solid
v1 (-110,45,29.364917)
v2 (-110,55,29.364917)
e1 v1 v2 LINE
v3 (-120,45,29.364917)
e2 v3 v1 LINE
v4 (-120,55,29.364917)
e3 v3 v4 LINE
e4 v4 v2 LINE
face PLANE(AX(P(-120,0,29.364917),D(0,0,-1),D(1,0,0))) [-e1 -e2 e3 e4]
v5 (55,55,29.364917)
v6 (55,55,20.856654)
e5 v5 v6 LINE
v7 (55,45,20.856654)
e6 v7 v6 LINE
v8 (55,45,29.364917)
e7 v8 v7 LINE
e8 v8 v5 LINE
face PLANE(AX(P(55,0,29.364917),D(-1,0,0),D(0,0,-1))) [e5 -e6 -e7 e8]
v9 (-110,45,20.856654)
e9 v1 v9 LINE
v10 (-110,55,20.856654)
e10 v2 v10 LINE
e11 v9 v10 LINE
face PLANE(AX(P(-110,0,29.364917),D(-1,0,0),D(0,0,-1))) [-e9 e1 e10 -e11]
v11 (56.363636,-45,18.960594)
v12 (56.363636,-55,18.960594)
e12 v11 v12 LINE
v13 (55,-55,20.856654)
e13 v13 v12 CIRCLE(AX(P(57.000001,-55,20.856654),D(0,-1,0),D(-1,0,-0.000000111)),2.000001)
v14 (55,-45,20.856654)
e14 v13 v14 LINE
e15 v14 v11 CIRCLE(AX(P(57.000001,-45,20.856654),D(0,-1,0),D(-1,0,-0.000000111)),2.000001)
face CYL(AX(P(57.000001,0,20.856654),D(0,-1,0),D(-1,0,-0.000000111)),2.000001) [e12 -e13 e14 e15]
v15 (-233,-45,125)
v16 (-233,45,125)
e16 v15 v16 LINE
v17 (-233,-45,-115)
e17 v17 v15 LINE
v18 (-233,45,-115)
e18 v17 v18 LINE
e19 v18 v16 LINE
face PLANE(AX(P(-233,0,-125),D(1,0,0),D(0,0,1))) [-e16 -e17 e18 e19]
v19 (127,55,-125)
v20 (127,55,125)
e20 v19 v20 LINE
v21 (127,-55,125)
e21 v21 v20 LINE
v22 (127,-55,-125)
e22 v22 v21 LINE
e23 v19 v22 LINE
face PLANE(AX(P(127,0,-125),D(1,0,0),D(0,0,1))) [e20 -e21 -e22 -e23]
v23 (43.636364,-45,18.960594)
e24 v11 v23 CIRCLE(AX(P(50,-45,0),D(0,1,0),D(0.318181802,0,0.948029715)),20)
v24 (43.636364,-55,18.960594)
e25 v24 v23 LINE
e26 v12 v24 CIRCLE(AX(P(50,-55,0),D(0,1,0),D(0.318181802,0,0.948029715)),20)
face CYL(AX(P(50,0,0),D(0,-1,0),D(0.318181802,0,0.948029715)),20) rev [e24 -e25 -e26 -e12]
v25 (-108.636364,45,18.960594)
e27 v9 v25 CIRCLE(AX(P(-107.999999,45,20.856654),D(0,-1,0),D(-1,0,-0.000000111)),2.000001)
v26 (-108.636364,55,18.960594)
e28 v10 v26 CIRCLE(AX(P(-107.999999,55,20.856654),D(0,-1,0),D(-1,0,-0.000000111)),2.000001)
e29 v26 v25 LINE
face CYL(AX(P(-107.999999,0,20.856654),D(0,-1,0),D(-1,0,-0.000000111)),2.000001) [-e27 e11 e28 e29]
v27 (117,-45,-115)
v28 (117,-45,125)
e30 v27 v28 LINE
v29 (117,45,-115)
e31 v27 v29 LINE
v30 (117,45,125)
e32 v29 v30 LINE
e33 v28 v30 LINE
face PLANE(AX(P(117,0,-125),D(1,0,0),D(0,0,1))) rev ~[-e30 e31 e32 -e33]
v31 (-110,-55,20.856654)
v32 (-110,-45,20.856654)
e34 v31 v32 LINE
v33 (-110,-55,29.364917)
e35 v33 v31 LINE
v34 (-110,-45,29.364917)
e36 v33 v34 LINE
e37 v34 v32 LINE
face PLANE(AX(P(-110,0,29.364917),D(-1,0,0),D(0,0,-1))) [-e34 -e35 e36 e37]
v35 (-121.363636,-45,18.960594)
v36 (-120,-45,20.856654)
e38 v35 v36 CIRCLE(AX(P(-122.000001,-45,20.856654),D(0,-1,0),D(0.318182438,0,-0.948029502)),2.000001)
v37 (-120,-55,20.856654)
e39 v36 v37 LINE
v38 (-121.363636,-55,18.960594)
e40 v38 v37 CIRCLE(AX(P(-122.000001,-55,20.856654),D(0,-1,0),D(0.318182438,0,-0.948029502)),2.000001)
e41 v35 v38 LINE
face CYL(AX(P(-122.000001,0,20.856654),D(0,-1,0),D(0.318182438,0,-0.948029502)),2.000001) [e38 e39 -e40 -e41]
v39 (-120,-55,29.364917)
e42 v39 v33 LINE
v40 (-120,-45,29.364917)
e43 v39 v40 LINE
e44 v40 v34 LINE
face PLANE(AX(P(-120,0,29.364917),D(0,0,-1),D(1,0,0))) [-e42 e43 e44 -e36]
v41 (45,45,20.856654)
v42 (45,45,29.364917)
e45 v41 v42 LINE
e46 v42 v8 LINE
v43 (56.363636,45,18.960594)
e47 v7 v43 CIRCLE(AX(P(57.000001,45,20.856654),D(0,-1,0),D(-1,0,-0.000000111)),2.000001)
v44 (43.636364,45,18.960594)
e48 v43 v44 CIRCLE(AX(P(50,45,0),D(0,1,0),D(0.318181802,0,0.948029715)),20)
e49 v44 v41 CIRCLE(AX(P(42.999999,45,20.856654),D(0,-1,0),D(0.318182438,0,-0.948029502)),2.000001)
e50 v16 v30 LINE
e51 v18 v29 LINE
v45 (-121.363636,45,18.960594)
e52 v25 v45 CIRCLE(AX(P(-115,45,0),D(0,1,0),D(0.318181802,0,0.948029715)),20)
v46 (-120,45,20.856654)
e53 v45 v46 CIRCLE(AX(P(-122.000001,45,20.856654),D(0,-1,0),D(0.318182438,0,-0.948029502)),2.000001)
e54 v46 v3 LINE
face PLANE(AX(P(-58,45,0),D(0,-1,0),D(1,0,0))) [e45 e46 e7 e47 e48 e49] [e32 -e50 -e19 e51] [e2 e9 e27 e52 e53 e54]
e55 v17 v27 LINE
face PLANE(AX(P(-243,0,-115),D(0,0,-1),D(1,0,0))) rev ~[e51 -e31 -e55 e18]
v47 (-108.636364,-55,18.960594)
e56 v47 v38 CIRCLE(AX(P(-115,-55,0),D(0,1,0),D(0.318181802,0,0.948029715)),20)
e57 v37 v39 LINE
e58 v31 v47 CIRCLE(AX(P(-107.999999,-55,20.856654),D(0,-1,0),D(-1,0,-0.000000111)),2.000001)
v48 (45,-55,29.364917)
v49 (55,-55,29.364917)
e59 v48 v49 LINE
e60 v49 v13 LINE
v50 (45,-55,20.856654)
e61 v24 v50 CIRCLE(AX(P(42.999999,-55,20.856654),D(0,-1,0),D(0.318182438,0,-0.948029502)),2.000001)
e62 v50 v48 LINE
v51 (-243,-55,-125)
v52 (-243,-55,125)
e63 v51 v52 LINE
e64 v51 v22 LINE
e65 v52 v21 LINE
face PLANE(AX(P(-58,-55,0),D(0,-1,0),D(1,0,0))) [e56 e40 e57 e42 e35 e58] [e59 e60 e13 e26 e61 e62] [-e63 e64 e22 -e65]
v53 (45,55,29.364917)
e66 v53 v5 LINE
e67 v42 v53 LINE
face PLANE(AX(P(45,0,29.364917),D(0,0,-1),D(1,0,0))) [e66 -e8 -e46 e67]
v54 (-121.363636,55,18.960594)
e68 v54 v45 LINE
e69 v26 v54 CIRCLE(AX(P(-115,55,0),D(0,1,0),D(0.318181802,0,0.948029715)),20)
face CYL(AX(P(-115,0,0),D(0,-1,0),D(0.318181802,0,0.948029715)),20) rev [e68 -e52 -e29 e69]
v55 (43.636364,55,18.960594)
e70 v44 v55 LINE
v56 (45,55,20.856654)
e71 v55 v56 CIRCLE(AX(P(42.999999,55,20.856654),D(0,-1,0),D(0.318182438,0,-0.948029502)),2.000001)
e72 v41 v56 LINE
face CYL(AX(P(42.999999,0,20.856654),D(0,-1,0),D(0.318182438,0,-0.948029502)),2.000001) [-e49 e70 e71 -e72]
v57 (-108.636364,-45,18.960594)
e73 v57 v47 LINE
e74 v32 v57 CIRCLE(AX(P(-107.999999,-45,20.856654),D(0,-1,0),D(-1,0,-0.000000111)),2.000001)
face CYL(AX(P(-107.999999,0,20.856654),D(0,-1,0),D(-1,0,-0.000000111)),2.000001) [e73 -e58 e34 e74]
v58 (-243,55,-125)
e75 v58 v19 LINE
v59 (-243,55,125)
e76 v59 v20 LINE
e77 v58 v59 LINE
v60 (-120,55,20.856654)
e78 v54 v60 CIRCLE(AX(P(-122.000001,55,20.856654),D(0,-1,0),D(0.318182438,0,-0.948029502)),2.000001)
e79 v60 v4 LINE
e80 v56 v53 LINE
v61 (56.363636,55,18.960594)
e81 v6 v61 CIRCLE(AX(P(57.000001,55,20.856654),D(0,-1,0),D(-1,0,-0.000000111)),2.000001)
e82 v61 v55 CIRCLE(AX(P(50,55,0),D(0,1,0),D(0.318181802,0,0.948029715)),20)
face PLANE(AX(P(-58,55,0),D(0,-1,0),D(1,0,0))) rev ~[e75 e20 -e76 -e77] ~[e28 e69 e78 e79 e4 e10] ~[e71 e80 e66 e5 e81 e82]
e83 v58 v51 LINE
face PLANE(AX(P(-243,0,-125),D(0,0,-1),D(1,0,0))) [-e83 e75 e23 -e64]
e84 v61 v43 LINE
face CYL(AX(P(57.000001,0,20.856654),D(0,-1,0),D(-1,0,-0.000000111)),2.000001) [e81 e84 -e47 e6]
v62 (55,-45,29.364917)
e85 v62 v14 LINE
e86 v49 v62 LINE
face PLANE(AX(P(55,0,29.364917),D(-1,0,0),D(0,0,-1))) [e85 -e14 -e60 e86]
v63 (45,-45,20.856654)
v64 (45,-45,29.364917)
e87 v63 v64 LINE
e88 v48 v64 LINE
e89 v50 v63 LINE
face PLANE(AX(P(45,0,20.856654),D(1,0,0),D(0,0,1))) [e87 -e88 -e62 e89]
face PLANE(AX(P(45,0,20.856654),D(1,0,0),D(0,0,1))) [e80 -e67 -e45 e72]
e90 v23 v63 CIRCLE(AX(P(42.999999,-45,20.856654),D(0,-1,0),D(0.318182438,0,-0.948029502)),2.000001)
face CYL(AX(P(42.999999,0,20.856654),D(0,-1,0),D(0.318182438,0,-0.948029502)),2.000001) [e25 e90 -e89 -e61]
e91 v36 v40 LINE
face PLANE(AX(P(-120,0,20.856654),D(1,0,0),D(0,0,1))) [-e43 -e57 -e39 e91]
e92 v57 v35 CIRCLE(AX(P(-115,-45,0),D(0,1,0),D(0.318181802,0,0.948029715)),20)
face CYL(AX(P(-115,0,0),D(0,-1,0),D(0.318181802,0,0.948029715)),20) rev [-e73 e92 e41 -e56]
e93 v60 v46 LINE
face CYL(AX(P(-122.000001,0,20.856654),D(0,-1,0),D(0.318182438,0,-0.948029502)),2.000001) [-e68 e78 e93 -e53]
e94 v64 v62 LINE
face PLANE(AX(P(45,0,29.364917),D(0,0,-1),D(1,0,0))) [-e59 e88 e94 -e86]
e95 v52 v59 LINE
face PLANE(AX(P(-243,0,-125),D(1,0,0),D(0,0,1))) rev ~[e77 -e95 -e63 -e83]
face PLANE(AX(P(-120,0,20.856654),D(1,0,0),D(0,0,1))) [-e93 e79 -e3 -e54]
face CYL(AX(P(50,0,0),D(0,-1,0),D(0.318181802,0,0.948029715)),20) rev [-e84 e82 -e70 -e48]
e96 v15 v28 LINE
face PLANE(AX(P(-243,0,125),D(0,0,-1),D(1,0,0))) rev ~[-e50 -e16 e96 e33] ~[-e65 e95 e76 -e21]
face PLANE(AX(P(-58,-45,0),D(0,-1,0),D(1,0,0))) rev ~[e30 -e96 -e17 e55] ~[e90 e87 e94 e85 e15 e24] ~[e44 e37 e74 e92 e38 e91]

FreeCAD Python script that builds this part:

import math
import FreeCAD as App
import Part
import Sketcher

V = App.Vector


def faces_at(feature, points):
    """Names of the faces that lie closest to the given points."""
    faces = feature.Shape.Faces
    near = lambda p: min(range(len(faces)), key=lambda i: faces[i].distToShape(Part.Vertex(*p))[0])
    return sorted({f"Face{near(p) + 1}" for p in points})

doc = App.newDocument("Part")
body = doc.addObject("PartDesign::Body", "Body")

sketch1 = body.newObject("Sketcher::SketchObject", "Sketch")
sketch1.AttachmentSupport = (doc.getObject("XZ_Plane"), [""])
sketch1.MapMode = "FlatFace"
sketch1.addGeometry(Part.LineSegment(V(-243, 125, 0), V(-243, -125, 0)), False)
sketch1.addGeometry(Part.LineSegment(V(-243, -125, 0), V(127, -125, 0)), False)
sketch1.addGeometry(Part.LineSegment(V(127, -125, 0), V(127, 125, 0)), False)
sketch1.addGeometry(Part.LineSegment(V(127, 125, 0), V(-243, 125, 0)), False)
sketch1.addGeometry(Part.ArcOfCircle(Part.Circle(V(-107.999999, 20.856654, 0), V(0, 0, 1), 2.000001), math.radians(-179.999994), math.radians(-108.553042)), False)
sketch1.addGeometry(Part.ArcOfCircle(Part.Circle(V(-115, 0, 0), V(0, 0, 1), 20), math.radians(108.553004), math.radians(431.446996)), False)
sketch1.addGeometry(Part.ArcOfCircle(Part.Circle(V(-122.000001, 20.856654, 0), V(0, 0, 1), 2.000001), math.radians(-71.446958), math.radians(-0.000006)), False)
sketch1.addGeometry(Part.LineSegment(V(-120, 20.856654, 0), V(-120, 29.364917, 0)), False)
sketch1.addGeometry(Part.LineSegment(V(-120, 29.364917, 0), V(-110, 29.364917, 0)), False)
sketch1.addGeometry(Part.LineSegment(V(-110, 29.364917, 0), V(-110, 20.856654, 0)), False)
sketch1.addGeometry(Part.ArcOfCircle(Part.Circle(V(57.000001, 20.856654, 0), V(0, 0, 1), 2.000001), math.radians(-179.999994), math.radians(-108.553042)), False)
sketch1.addGeometry(Part.ArcOfCircle(Part.Circle(V(50, 0, 0), V(0, 0, 1), 20), math.radians(108.553004), math.radians(431.446996)), False)
sketch1.addGeometry(Part.ArcOfCircle(Part.Circle(V(42.999999, 20.856654, 0), V(0, 0, 1), 2.000001), math.radians(-71.446958), math.radians(-0.000006)), False)
sketch1.addGeometry(Part.LineSegment(V(45, 20.856654, 0), V(45, 29.364917, 0)), False)
sketch1.addGeometry(Part.LineSegment(V(45, 29.364917, 0), V(55, 29.364917, 0)), False)
sketch1.addGeometry(Part.LineSegment(V(55, 29.364917, 0), V(55, 20.856654, 0)), False)
sketch1.addConstraint(Sketcher.Constraint("Coincident", 0, 2, 1, 1))
sketch1.addConstraint(Sketcher.Constraint("Coincident", 1, 2, 2, 1))
sketch1.addConstraint(Sketcher.Constraint("Coincident", 2, 2, 3, 1))
sketch1.addConstraint(Sketcher.Constraint("Coincident", 3, 2, 0, 1))
sketch1.addConstraint(Sketcher.Constraint("Tangent", 4, 2, 5, 2))
sketch1.addConstraint(Sketcher.Constraint("Tangent", 5, 1, 6, 1))
sketch1.addConstraint(Sketcher.Constraint("Tangent", 6, 2, 7, 1))
sketch1.addConstraint(Sketcher.Constraint("Coincident", 7, 2, 8, 1))
sketch1.addConstraint(Sketcher.Constraint("Coincident", 8, 2, 9, 1))
sketch1.addConstraint(Sketcher.Constraint("Tangent", 9, 2, 4, 1))
sketch1.addConstraint(Sketcher.Constraint("Tangent", 10, 2, 11, 2))
sketch1.addConstraint(Sketcher.Constraint("Tangent", 11, 1, 12, 1))
sketch1.addConstraint(Sketcher.Constraint("Tangent", 12, 2, 13, 1))
sketch1.addConstraint(Sketcher.Constraint("Coincident", 13, 2, 14, 1))
sketch1.addConstraint(Sketcher.Constraint("Coincident", 14, 2, 15, 1))
sketch1.addConstraint(Sketcher.Constraint("Tangent", 15, 2, 10, 1))
sketch1.addConstraint(Sketcher.Constraint("Vertical", 0))
sketch1.addConstraint(Sketcher.Constraint("Horizontal", 1))
sketch1.addConstraint(Sketcher.Constraint("Vertical", 2))
sketch1.addConstraint(Sketcher.Constraint("Horizontal", 3))
sketch1.addConstraint(Sketcher.Constraint("Vertical", 7))
sketch1.addConstraint(Sketcher.Constraint("Horizontal", 8))
sketch1.addConstraint(Sketcher.Constraint("Vertical", 9))
sketch1.addConstraint(Sketcher.Constraint("Vertical", 13))
sketch1.addConstraint(Sketcher.Constraint("Horizontal", 14))
sketch1.addConstraint(Sketcher.Constraint("Vertical", 15))
sketch1.addConstraint(Sketcher.Constraint("Equal", 4, 6))
sketch1.addConstraint(Sketcher.Constraint("Equal", 6, 10))
sketch1.addConstraint(Sketcher.Constraint("Equal", 5, 11))
sketch1.addConstraint(Sketcher.Constraint("Equal", 10, 12))
sketch1.addConstraint(Sketcher.Constraint("PointOnObject", 5, 3, -1))
sketch1.addConstraint(Sketcher.Constraint("PointOnObject", 11, 3, -1))
sketch1.addConstraint(Sketcher.Constraint("Horizontal", 4, 3, 6, 3))
sketch1.addConstraint(Sketcher.Constraint("Horizontal", 6, 3, 10, 3))
sketch1.addConstraint(Sketcher.Constraint("Horizontal", 10, 3, 12, 3))
sketch1.addConstraint(Sketcher.Constraint("Horizontal", 8, 2, 13, 2))
sketch1.addConstraint(Sketcher.Constraint("Radius", 4, 2.000001))
sketch1.addConstraint(Sketcher.Constraint("Radius", 5, 20.0))
sketch1.addConstraint(Sketcher.Constraint("DistanceX", 1, 1, 1, 2, 370.0))
sketch1.addConstraint(Sketcher.Constraint("DistanceX", 8, 1, 8, 2, 10.0))
sketch1.addConstraint(Sketcher.Constraint("DistanceY", 0, 2, 0, 1, 250.0))
sketch1.addConstraint(Sketcher.Constraint("DistanceX", 4, 3, -1, 1, 107.999999))
sketch1.addConstraint(Sketcher.Constraint("DistanceX", -1, 1, 10, 3, 57.000001))
sketch1.addConstraint(Sketcher.Constraint("DistanceX", 0, 2, -1, 1, 243.0))
sketch1.addConstraint(Sketcher.Constraint("DistanceY", 0, 2, -1, 1, 125.0))
sketch1.addConstraint(Sketcher.Constraint("DistanceY", 7, 1, 7, 2, 8.508263))
pad1 = body.newObject("PartDesign::Pad", "Pad")
pad1.Profile = sketch1
pad1.Length = 110
pad1.Midplane = True
doc.recompute()

thickness = body.newObject("PartDesign::Thickness", "Thickness")
thickness.Base = (pad1, faces_at(pad1, [
    (-58, 0, 125),
    (-115, 0, -20),
    (-120.376, 0, 19.689),
    (-120, 0, 25.111),
    (-115, 0, 29.365),
    (-110, 0, 25.111),
    (-109.624, 0, 19.689),
    (50, 0, -20),
    (55.376, 0, 19.689),
    (55, 0, 25.111),
    (50, 0, 29.365),
    (45, 0, 25.111),
    (44.624, 0, 19.689),
]))
thickness.Value = 10
thickness.Reversed = True
thickness.Join = "Arc"

doc.recompute()
